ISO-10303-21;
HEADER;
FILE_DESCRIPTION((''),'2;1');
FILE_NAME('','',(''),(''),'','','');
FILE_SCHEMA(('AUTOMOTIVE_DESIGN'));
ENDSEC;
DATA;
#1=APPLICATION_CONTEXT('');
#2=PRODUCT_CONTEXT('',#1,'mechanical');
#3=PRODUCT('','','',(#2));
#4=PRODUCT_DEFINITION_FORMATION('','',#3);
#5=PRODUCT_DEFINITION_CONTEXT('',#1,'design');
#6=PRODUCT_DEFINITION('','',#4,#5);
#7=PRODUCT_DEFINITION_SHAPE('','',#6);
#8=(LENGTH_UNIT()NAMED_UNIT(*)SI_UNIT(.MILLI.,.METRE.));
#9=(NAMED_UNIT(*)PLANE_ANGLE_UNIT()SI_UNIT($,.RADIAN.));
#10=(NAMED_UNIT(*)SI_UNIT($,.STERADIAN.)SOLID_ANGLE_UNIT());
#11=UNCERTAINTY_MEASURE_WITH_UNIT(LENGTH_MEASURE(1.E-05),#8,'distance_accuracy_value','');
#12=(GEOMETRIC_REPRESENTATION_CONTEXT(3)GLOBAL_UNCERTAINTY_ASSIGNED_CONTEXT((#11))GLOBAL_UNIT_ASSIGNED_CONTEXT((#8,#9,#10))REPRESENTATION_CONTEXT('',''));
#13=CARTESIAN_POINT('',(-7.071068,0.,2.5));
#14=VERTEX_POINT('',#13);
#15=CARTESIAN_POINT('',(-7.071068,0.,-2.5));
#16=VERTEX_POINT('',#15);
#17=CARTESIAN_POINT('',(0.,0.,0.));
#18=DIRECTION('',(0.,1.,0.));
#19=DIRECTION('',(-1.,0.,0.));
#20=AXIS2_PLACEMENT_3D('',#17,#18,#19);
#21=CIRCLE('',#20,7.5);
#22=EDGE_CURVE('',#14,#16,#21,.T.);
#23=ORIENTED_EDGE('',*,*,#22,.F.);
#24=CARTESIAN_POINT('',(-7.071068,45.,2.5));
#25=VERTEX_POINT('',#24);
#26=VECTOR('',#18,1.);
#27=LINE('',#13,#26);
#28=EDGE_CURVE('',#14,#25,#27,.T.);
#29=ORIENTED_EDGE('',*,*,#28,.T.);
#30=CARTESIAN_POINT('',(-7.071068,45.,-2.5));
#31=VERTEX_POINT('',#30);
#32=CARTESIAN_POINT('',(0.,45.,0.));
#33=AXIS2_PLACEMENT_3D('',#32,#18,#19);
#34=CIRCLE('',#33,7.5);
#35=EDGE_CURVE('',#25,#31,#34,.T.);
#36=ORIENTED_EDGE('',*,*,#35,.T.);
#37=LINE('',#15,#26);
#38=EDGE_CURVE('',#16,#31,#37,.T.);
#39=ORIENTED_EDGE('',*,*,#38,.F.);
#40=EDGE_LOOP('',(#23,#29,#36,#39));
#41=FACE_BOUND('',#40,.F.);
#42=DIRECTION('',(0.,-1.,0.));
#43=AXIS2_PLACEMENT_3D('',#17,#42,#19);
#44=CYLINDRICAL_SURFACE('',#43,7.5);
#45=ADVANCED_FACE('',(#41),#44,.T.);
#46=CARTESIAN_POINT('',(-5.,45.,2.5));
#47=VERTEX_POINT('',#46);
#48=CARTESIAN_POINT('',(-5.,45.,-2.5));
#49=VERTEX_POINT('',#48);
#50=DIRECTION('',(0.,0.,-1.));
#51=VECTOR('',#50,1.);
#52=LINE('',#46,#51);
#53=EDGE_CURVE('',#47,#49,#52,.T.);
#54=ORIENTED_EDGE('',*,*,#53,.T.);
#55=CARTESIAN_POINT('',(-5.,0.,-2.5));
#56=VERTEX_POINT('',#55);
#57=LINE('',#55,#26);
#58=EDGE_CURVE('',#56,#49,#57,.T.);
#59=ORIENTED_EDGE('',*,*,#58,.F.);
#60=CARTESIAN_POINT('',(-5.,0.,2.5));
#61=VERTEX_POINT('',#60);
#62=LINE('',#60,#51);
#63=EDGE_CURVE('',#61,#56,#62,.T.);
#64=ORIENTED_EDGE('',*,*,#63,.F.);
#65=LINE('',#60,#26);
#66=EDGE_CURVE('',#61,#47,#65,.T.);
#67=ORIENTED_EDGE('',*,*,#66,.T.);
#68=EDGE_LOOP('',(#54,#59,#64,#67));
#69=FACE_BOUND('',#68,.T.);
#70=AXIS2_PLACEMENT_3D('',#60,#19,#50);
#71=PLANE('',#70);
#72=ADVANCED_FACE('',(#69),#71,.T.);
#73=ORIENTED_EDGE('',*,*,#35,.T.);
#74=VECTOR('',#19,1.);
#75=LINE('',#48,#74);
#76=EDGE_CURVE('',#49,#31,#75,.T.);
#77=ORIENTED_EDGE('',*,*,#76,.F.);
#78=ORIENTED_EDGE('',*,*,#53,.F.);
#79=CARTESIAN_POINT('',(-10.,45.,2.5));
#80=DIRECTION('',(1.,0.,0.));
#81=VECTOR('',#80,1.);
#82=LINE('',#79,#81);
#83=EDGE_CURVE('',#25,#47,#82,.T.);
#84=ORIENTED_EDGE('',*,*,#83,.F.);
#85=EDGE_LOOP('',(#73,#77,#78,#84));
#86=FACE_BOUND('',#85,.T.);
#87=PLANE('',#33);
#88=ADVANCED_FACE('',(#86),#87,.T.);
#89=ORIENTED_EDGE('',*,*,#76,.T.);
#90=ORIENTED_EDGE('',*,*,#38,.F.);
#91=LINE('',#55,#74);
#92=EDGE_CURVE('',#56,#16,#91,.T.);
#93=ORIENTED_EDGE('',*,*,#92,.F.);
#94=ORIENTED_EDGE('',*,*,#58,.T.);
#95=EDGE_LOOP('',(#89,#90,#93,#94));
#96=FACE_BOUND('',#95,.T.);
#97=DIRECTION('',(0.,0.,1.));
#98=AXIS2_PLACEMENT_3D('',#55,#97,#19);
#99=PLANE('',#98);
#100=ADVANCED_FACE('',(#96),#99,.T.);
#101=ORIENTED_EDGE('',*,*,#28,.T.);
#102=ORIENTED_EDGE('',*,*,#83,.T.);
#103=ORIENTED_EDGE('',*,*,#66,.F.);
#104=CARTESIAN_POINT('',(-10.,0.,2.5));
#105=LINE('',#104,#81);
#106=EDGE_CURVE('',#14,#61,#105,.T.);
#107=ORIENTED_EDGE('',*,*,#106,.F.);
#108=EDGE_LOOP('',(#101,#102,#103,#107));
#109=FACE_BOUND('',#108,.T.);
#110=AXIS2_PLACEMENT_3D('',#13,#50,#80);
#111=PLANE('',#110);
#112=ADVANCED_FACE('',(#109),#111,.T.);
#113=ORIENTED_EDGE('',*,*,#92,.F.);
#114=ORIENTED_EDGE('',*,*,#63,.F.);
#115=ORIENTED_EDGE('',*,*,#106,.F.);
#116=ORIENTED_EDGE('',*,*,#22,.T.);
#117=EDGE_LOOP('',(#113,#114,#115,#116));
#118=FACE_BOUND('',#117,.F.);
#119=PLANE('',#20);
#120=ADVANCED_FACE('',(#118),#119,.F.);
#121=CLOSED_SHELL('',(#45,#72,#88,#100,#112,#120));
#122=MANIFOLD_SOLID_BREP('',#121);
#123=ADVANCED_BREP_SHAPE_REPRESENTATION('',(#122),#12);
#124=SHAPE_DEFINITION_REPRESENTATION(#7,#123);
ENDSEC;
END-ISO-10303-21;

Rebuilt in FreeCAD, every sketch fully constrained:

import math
import FreeCAD as App
import Part
import Sketcher
Q = App.Units.Quantity

doc = App.newDocument("Part")
body = doc.addObject("PartDesign::Body", "Body")

# Sketch on XZ plane
sketch1 = doc.addObject("Sketcher::SketchObject", "Sketch")
body.addObject(sketch1)
sketch1.AttachmentSupport = (doc.XZ_Plane, [""])
sketch1.MapMode = "FlatFace"
sketch1.addGeometry(Part.LineSegment(App.Vector(-5, 2.5, 0), App.Vector(-7.071068, 2.5, 0)), False)
sketch1.addGeometry(Part.ArcOfCircle(Part.Circle(App.Vector(0, 0, 0), App.Vector(0, 0, 1), 7.5), math.radians(-160.528779), math.radians(160.528779)), False)
sketch1.addGeometry(Part.LineSegment(App.Vector(-7.071068, -2.5, 0), App.Vector(-5, -2.5, 0)), False)
sketch1.addGeometry(Part.LineSegment(App.Vector(-5, -2.5, 0), App.Vector(-5, 2.5, 0)), False)
sketch1.addConstraint(Sketcher.Constraint("Coincident", 0, 2, 1, 2))
sketch1.addConstraint(Sketcher.Constraint("Coincident", 1, 1, 2, 1))
sketch1.addConstraint(Sketcher.Constraint("Coincident", 2, 2, 3, 1))
sketch1.addConstraint(Sketcher.Constraint("Coincident", 3, 2, 0, 1))
sketch1.addConstraint(Sketcher.Constraint("Horizontal", 0))
sketch1.addConstraint(Sketcher.Constraint("Horizontal", 2))
sketch1.addConstraint(Sketcher.Constraint("Vertical", 3))
sketch1.addConstraint(Sketcher.Constraint("Coincident", 1, 3, -1, 1))
sketch1.addConstraint(Sketcher.Constraint("Vertical", 0, 2, 1, 1))
sketch1.addConstraint(Sketcher.Constraint("Radius", 1, Q("7.5 mm")))
sketch1.addConstraint(Sketcher.Constraint("DistanceY", 3, 1, 3, 2, Q("5 mm")))
sketch1.addConstraint(Sketcher.Constraint("DistanceX", 2, 2, -1, 1, Q("5 mm")))
pad1 = doc.addObject("PartDesign::Pad", "Pad")
body.addObject(pad1)
pad1.Profile = sketch1
pad1.Length = 45
pad1.Reversed = True

doc.recompute()
